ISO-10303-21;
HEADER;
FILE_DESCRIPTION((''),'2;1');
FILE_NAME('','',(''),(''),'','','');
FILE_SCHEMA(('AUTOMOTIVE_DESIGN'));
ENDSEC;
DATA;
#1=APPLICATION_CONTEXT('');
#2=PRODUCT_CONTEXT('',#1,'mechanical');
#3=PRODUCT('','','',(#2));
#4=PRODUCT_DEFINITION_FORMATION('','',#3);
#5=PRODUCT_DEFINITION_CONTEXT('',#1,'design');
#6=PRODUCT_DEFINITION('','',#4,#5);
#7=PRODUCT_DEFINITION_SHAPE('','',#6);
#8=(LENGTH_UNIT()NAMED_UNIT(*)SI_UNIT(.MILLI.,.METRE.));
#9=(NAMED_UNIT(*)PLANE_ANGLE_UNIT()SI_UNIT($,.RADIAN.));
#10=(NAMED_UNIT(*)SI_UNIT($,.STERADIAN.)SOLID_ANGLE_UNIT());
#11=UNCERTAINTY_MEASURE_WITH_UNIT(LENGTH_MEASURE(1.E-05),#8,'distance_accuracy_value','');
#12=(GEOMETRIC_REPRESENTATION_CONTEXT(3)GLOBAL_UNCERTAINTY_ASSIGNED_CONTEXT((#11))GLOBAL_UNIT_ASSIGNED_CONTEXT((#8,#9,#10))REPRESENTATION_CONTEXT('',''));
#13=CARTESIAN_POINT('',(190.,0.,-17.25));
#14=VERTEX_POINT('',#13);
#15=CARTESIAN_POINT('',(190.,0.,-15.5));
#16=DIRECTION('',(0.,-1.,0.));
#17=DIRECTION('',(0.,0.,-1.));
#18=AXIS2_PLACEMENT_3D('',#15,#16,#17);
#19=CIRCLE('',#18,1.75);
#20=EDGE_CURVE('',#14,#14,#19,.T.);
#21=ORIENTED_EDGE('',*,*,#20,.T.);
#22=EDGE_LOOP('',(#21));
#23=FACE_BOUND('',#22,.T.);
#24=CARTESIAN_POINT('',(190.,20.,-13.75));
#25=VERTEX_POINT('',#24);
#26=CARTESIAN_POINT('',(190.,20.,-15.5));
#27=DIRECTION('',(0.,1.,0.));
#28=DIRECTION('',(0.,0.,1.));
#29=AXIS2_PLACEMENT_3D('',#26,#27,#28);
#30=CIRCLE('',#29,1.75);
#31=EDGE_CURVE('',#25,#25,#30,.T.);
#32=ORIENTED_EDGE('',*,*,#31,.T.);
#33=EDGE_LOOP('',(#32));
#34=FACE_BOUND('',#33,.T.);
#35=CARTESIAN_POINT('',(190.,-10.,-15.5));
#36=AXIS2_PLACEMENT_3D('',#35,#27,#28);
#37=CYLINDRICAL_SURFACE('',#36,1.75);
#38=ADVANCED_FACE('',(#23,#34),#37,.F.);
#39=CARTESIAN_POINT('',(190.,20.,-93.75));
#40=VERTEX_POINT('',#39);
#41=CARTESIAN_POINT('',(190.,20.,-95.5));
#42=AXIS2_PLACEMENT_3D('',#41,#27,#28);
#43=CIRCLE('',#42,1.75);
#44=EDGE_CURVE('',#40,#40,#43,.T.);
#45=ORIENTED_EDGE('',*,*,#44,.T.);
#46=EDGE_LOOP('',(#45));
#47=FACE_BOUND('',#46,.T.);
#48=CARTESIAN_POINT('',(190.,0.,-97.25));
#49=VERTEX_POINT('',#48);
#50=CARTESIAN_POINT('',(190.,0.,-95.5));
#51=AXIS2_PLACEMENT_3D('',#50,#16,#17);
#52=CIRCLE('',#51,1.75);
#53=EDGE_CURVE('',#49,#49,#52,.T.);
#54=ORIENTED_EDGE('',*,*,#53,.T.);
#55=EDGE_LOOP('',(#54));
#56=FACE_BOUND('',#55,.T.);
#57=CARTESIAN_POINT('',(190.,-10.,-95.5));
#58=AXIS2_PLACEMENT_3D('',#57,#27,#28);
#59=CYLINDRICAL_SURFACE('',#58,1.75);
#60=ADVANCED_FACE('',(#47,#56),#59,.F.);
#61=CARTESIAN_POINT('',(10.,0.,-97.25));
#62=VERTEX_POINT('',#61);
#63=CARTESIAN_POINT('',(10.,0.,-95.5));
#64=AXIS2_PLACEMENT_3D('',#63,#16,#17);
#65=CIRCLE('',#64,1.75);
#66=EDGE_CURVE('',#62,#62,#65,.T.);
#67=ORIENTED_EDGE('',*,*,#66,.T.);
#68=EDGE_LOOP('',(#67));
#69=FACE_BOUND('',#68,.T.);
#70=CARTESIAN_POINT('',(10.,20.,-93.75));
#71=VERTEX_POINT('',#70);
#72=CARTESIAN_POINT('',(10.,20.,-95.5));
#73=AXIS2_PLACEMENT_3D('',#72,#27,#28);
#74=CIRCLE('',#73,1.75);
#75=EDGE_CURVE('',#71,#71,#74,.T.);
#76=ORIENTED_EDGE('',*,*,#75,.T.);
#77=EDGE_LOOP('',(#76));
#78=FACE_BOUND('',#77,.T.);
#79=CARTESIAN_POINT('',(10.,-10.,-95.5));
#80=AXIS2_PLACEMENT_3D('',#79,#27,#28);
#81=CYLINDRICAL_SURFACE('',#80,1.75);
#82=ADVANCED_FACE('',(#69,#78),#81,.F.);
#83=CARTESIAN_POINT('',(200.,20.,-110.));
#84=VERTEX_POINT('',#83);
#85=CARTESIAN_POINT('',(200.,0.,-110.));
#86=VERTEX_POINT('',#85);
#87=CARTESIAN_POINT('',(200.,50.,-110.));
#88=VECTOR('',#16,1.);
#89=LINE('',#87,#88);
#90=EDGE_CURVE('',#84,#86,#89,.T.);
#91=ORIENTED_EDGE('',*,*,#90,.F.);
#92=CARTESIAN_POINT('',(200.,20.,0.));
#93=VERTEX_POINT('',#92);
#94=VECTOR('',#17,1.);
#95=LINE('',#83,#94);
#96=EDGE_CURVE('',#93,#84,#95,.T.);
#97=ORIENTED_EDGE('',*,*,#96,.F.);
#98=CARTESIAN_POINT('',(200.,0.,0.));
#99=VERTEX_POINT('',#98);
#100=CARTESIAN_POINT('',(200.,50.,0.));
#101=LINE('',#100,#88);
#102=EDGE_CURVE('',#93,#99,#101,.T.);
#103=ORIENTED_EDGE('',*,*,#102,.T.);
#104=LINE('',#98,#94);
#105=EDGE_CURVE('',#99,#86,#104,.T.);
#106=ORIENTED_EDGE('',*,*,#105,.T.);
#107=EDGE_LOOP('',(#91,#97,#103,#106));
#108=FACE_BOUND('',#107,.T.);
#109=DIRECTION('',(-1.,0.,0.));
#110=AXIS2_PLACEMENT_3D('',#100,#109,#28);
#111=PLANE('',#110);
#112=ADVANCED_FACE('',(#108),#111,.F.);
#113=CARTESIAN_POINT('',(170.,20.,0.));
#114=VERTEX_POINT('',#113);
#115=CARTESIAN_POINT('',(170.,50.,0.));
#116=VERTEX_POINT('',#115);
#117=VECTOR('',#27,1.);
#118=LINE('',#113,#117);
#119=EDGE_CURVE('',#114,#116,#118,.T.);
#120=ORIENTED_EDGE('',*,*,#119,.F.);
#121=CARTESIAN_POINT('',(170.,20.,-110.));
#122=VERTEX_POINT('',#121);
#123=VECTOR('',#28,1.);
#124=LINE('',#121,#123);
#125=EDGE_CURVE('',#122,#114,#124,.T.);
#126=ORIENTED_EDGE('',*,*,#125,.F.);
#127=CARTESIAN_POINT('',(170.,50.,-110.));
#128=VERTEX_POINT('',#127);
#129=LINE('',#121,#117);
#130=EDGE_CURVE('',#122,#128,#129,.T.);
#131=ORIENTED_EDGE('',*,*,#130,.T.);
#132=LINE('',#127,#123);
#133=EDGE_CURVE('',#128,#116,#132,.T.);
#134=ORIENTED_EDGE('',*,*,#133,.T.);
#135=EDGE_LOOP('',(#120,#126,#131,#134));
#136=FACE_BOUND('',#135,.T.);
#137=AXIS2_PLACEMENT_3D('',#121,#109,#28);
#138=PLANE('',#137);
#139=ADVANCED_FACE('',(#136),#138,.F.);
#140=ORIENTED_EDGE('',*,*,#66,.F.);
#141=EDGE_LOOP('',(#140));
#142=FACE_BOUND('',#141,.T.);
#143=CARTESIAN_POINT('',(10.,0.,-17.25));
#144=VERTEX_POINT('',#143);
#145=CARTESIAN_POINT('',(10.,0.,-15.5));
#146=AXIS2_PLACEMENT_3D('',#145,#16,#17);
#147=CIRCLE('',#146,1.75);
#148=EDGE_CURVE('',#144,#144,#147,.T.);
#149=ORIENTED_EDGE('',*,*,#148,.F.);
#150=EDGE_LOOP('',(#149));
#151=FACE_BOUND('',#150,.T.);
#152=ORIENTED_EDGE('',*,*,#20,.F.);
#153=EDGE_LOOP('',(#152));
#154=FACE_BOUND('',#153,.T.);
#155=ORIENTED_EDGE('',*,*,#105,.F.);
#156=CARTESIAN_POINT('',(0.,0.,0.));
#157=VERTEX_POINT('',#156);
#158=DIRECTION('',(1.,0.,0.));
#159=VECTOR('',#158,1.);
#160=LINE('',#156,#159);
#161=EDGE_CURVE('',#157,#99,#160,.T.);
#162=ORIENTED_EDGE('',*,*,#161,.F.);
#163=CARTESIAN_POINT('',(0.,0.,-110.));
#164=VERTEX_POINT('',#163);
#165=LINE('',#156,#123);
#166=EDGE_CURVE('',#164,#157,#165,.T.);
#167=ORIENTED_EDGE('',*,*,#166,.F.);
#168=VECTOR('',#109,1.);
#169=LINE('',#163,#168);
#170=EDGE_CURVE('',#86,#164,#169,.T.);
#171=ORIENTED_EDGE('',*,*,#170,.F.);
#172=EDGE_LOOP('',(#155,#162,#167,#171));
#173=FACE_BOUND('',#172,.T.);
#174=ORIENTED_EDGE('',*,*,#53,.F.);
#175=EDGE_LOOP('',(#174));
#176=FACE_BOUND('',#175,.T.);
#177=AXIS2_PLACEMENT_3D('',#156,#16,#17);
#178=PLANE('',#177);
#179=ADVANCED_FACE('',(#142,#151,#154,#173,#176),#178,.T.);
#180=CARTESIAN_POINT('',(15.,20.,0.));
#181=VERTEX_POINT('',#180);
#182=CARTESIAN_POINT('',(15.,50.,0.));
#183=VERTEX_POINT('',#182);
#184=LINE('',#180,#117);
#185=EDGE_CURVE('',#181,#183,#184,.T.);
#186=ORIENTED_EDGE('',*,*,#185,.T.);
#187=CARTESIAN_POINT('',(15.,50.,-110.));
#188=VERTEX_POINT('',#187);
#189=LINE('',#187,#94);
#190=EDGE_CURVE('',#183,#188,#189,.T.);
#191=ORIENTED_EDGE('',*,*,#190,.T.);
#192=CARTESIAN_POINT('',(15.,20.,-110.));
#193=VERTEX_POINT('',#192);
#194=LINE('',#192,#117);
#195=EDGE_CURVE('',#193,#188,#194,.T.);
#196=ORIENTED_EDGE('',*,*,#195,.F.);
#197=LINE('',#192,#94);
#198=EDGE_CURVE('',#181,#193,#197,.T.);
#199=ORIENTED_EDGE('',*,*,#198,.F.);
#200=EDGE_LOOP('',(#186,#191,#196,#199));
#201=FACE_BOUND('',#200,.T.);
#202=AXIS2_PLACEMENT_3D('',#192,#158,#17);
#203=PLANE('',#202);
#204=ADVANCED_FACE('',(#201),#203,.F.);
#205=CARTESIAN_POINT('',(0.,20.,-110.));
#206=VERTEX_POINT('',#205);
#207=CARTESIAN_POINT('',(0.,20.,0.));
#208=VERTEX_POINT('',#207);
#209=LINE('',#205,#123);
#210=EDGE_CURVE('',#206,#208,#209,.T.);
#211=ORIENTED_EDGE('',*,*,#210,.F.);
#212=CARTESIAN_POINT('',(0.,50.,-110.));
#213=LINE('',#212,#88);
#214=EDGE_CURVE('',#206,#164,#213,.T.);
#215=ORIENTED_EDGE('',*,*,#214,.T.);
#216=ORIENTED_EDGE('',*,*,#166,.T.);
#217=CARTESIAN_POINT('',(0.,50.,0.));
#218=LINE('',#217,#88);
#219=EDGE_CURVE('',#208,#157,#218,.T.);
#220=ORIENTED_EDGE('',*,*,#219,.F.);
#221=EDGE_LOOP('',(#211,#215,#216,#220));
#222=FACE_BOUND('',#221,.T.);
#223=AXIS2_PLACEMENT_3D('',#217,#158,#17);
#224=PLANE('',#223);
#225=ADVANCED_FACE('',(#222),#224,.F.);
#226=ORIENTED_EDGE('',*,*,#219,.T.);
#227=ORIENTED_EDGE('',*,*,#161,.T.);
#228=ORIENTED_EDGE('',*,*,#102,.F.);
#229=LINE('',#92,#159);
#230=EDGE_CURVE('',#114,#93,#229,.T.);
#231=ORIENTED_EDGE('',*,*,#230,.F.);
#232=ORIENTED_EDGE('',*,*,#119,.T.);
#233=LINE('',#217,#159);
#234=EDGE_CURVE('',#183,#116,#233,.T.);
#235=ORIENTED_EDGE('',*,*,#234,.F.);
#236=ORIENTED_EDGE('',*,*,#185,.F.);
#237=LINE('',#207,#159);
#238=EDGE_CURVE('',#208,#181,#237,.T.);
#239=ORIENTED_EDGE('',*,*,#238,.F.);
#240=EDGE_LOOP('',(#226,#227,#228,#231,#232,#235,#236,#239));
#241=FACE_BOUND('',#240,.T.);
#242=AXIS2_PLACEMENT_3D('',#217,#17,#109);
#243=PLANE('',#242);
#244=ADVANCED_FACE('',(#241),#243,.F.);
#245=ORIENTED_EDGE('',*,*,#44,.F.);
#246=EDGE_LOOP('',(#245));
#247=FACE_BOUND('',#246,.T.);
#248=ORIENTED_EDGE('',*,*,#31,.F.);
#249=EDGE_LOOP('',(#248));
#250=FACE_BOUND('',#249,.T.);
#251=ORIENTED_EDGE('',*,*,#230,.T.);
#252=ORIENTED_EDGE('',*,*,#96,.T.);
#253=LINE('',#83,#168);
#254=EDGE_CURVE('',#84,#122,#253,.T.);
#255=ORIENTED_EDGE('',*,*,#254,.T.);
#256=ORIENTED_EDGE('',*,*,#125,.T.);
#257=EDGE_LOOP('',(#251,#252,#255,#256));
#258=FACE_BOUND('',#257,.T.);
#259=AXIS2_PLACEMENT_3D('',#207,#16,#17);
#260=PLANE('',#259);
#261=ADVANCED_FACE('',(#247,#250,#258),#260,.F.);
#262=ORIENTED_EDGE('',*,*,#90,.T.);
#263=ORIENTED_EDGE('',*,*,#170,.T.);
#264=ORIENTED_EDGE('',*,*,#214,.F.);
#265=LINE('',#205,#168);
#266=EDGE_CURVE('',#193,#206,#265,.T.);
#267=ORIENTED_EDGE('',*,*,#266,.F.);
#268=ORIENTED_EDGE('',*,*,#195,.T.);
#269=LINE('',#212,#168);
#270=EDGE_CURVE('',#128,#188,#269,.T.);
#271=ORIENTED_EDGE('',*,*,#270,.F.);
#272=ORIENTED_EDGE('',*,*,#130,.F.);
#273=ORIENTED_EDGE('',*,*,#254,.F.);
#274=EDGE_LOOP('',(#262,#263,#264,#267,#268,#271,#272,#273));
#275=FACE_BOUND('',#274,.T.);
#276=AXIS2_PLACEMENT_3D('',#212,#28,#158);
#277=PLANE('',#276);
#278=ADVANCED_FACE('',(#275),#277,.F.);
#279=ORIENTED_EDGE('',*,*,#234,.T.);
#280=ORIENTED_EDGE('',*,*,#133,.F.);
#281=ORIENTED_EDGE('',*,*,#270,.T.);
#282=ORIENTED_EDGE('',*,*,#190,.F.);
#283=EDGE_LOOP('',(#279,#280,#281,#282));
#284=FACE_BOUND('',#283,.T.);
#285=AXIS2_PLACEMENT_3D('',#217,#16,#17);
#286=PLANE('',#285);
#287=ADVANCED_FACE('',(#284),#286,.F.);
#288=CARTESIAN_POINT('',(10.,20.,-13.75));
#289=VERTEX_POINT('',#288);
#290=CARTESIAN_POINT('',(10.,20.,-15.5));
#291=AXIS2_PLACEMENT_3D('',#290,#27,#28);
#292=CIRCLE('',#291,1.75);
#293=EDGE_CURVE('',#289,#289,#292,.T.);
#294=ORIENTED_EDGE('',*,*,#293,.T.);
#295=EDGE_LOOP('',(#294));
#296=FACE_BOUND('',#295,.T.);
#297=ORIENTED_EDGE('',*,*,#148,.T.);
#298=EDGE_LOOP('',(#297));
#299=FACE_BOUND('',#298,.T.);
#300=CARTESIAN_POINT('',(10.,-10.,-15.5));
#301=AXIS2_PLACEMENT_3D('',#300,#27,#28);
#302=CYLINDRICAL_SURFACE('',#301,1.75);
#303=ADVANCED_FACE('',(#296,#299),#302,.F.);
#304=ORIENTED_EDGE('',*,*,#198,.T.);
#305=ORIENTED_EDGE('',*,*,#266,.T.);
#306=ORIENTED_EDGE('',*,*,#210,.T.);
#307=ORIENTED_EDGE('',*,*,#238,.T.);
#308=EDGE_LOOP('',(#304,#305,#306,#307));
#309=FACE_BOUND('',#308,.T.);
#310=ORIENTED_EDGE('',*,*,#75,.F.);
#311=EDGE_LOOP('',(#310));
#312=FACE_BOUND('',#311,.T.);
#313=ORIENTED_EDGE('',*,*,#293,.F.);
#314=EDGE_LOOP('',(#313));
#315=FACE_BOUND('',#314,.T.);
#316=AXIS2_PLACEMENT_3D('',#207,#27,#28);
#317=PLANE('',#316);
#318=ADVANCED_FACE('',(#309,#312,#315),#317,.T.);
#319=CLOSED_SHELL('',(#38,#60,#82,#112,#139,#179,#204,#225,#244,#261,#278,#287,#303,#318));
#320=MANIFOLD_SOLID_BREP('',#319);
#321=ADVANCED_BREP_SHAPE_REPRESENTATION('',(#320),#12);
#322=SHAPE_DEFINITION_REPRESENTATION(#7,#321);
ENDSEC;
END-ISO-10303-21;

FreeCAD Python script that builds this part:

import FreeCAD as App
import Part
import Sketcher
from FreeCAD import Vector
Q = App.Units.Quantity


def add_polygon(sketch, points):
    """Adds a closed chain of lines whose ends are joined by coincident constraints."""
    first, n = sketch.GeometryCount, len(points)
    for a, b in zip(points, points[1:] + points[:1]):
        sketch.addGeometry(Part.LineSegment(App.Vector(*a, 0), App.Vector(*b, 0)), False)
    for i in range(n):
        sketch.addConstraint(Sketcher.Constraint("Coincident", first + i, 2, first + (i + 1) % n, 1))

doc = App.newDocument("Part")
body = doc.addObject("PartDesign::Body", "Body")

# Sketch on XZ plane
sketch1 = body.newObject("Sketcher::SketchObject", "Sketch")
sketch1.AttachmentSupport = (doc.getObject("XZ_Plane"), [""])
sketch1.MapMode = "FlatFace"
add_polygon(sketch1, [(0, -110), (0, 0), (200, 0), (200, -110)])  # lines 0-3
sketch1.addConstraint([
    Sketcher.Constraint("Vertical", 0),
    Sketcher.Constraint("Horizontal", 1),
    Sketcher.Constraint("Vertical", 2),
    Sketcher.Constraint("Horizontal", 3),
    Sketcher.Constraint("Coincident", 0, 2, -1, 1),
    Sketcher.Constraint("DistanceX", 1, 1, 1, 2, Q("200 mm")),
    Sketcher.Constraint("DistanceY", 0, 1, 0, 2, Q("110 mm")),
])
pad1 = body.newObject("PartDesign::Pad", "Pad")
pad1.Profile = sketch1
pad1.Length = 50
pad1.Reversed = True

# Sketch on XZ plane
sketch2 = body.newObject("Sketcher::SketchObject", "Sketch001")
sketch2.AttachmentSupport = (doc.getObject("XZ_Plane"), [""])
sketch2.MapMode = "FlatFace"
sketch2.AttachmentOffset = App.Placement(Vector(0, 0, -50), App.Rotation())
add_polygon(sketch2, [(170, -110), (170, 0), (200, 0), (200, -110)])  # lines 0-3
add_polygon(sketch2, [(0, -110), (0, 0), (15, 0), (15, -110)])  # lines 4-7
sketch2.addConstraint([
    Sketcher.Constraint("Vertical", 0),
    Sketcher.Constraint("Horizontal", 1),
    Sketcher.Constraint("Vertical", 2),
    Sketcher.Constraint("Horizontal", 3),
    Sketcher.Constraint("Vertical", 4),
    Sketcher.Constraint("Horizontal", 5),
    Sketcher.Constraint("Vertical", 6),
    Sketcher.Constraint("Horizontal", 7),
    Sketcher.Constraint("Coincident", 4, 2, -1, 1),
    Sketcher.Constraint("PointOnObject", 0, 2, -1),
    Sketcher.Constraint("Horizontal", 3, 2, 6, 2),
    Sketcher.Constraint("DistanceX", 1, 1, 1, 2, Q("30 mm")),
    Sketcher.Constraint("DistanceX", 5, 1, 5, 2, Q("15 mm")),
    Sketcher.Constraint("DistanceY", 0, 1, 0, 2, Q("110 mm")),
    Sketcher.Constraint("DistanceX", -1, 1, 0, 2, Q("170 mm")),
])
pocket1 = body.newObject("PartDesign::Pocket", "Pocket")
pocket1.Profile = sketch2
pocket1.Length = 30
pocket1.Reversed = True

# Sketch on XZ plane
sketch3 = body.newObject("Sketcher::SketchObject", "Sketch002")
sketch3.AttachmentSupport = (doc.getObject("XZ_Plane"), [""])
sketch3.MapMode = "FlatFace"
sketch3.AttachmentOffset = App.Placement(Vector(0, 0, -20), App.Rotation())
sketch3.addGeometry([
    Part.Circle(Vector(190, -95.5, 0), Vector(0, 0, 1), 1.75),
    Part.Circle(Vector(190, -15.5, 0), Vector(0, 0, 1), 1.75),
    Part.Circle(Vector(10, -95.5, 0), Vector(0, 0, 1), 1.75),
    Part.Circle(Vector(10, -15.5, 0), Vector(0, 0, 1), 1.75),
], False)
sketch3.addConstraint([
    Sketcher.Constraint("Equal", 0, 1),
    Sketcher.Constraint("Equal", 1, 2),
    Sketcher.Constraint("Equal", 2, 3),
    Sketcher.Constraint("Horizontal", 0, 3, 2, 3),
    Sketcher.Constraint("Horizontal", 1, 3, 3, 3),
    Sketcher.Constraint("Vertical", 0, 3, 1, 3),
    Sketcher.Constraint("Vertical", 2, 3, 3, 3),
    Sketcher.Constraint("Diameter", 0, Q("3.5 mm")),
    Sketcher.Constraint("DistanceX", -1, 1, 0, 3, Q("190 mm")),
    Sketcher.Constraint("DistanceX", -1, 1, 2, 3, Q("10 mm")),
    Sketcher.Constraint("DistanceY", 0, 3, 1, 3, Q("80 mm")),
    Sketcher.Constraint("DistanceY", 0, 3, -1, 1, Q("95.5 mm")),
])
pocket2 = body.newObject("PartDesign::Pocket", "Pocket001")
pocket2.Profile = sketch3
pocket2.Length = 30
pocket2.Reversed = True

doc.recompute()
